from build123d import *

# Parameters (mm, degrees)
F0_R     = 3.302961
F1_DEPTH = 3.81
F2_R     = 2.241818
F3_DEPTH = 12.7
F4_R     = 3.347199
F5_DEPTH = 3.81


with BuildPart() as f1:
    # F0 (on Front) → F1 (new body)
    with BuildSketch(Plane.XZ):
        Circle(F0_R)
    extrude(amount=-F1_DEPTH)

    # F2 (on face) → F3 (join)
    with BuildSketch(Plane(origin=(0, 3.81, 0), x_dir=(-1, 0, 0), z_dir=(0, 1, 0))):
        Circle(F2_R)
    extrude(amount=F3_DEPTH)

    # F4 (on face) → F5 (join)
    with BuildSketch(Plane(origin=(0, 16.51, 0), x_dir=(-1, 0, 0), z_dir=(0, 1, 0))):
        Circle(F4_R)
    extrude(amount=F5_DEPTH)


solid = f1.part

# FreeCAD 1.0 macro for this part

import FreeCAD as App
import Part
import Sketcher
Q = App.Units.Quantity

doc = App.newDocument("Part")
body = doc.addObject("PartDesign::Body", "Body")

# Sketch on XZ plane
sketch1 = body.newObject("Sketcher::SketchObject", "Sketch")
sketch1.AttachmentSupport = (doc.getObject("XZ_Plane"), [""])
sketch1.MapMode = "FlatFace"
sketch1.addGeometry(Part.Circle(App.Vector(0, 0, 0), App.Vector(0, 0, 1), 3.302961), False)
sketch1.addConstraint(Sketcher.Constraint("Coincident", 0, 3, -1, 1))
sketch1.addConstraint(Sketcher.Constraint("Diameter", 0, Q("6.605922 mm")))
pad1 = body.newObject("PartDesign::Pad", "Pad")
pad1.Profile = sketch1
pad1.Length = Q("0.15 in")
pad1.Reversed = True

# Sketch on XZ plane
sketch2 = body.newObject("Sketcher::SketchObject", "Sketch001")
sketch2.AttachmentSupport = (doc.getObject("XZ_Plane"), [""])
sketch2.MapMode = "FlatFace"
sketch2.AttachmentOffset = App.Placement(App.Vector(0, 0, -0.15 * 25.4), App.Rotation())
sketch2.addGeometry(Part.Circle(App.Vector(0, 0, 0), App.Vector(0, 0, 1), 2.241818), False)
sketch2.addConstraint(Sketcher.Constraint("Coincident", 0, 3, -1, 1))
sketch2.addConstraint(Sketcher.Constraint("Diameter", 0, Q("4.483636 mm")))
pad2 = body.newObject("PartDesign::Pad", "Pad001")
pad2.Profile = sketch2
pad2.Length = Q("0.5 in")
pad2.Reversed = True

# Sketch on XZ plane
sketch3 = body.newObject("Sketcher::SketchObject", "Sketch002")
sketch3.AttachmentSupport = (doc.getObject("XZ_Plane"), [""])
sketch3.MapMode = "FlatFace"
sketch3.AttachmentOffset = App.Placement(App.Vector(0, 0, -0.65 * 25.4), App.Rotation())
sketch3.addGeometry(Part.Circle(App.Vector(0, 0, 0), App.Vector(0, 0, 1), 3.347199), False)
sketch3.addConstraint(Sketcher.Constraint("Coincident", 0, 3, -1, 1))
sketch3.addConstraint(Sketcher.Constraint("Diameter", 0, Q("6.694398 mm")))
pad3 = body.newObject("PartDesign::Pad", "Pad002")
pad3.Profile = sketch3
pad3.Length = Q("0.15 in")
pad3.Reversed = True

doc.recompute()
